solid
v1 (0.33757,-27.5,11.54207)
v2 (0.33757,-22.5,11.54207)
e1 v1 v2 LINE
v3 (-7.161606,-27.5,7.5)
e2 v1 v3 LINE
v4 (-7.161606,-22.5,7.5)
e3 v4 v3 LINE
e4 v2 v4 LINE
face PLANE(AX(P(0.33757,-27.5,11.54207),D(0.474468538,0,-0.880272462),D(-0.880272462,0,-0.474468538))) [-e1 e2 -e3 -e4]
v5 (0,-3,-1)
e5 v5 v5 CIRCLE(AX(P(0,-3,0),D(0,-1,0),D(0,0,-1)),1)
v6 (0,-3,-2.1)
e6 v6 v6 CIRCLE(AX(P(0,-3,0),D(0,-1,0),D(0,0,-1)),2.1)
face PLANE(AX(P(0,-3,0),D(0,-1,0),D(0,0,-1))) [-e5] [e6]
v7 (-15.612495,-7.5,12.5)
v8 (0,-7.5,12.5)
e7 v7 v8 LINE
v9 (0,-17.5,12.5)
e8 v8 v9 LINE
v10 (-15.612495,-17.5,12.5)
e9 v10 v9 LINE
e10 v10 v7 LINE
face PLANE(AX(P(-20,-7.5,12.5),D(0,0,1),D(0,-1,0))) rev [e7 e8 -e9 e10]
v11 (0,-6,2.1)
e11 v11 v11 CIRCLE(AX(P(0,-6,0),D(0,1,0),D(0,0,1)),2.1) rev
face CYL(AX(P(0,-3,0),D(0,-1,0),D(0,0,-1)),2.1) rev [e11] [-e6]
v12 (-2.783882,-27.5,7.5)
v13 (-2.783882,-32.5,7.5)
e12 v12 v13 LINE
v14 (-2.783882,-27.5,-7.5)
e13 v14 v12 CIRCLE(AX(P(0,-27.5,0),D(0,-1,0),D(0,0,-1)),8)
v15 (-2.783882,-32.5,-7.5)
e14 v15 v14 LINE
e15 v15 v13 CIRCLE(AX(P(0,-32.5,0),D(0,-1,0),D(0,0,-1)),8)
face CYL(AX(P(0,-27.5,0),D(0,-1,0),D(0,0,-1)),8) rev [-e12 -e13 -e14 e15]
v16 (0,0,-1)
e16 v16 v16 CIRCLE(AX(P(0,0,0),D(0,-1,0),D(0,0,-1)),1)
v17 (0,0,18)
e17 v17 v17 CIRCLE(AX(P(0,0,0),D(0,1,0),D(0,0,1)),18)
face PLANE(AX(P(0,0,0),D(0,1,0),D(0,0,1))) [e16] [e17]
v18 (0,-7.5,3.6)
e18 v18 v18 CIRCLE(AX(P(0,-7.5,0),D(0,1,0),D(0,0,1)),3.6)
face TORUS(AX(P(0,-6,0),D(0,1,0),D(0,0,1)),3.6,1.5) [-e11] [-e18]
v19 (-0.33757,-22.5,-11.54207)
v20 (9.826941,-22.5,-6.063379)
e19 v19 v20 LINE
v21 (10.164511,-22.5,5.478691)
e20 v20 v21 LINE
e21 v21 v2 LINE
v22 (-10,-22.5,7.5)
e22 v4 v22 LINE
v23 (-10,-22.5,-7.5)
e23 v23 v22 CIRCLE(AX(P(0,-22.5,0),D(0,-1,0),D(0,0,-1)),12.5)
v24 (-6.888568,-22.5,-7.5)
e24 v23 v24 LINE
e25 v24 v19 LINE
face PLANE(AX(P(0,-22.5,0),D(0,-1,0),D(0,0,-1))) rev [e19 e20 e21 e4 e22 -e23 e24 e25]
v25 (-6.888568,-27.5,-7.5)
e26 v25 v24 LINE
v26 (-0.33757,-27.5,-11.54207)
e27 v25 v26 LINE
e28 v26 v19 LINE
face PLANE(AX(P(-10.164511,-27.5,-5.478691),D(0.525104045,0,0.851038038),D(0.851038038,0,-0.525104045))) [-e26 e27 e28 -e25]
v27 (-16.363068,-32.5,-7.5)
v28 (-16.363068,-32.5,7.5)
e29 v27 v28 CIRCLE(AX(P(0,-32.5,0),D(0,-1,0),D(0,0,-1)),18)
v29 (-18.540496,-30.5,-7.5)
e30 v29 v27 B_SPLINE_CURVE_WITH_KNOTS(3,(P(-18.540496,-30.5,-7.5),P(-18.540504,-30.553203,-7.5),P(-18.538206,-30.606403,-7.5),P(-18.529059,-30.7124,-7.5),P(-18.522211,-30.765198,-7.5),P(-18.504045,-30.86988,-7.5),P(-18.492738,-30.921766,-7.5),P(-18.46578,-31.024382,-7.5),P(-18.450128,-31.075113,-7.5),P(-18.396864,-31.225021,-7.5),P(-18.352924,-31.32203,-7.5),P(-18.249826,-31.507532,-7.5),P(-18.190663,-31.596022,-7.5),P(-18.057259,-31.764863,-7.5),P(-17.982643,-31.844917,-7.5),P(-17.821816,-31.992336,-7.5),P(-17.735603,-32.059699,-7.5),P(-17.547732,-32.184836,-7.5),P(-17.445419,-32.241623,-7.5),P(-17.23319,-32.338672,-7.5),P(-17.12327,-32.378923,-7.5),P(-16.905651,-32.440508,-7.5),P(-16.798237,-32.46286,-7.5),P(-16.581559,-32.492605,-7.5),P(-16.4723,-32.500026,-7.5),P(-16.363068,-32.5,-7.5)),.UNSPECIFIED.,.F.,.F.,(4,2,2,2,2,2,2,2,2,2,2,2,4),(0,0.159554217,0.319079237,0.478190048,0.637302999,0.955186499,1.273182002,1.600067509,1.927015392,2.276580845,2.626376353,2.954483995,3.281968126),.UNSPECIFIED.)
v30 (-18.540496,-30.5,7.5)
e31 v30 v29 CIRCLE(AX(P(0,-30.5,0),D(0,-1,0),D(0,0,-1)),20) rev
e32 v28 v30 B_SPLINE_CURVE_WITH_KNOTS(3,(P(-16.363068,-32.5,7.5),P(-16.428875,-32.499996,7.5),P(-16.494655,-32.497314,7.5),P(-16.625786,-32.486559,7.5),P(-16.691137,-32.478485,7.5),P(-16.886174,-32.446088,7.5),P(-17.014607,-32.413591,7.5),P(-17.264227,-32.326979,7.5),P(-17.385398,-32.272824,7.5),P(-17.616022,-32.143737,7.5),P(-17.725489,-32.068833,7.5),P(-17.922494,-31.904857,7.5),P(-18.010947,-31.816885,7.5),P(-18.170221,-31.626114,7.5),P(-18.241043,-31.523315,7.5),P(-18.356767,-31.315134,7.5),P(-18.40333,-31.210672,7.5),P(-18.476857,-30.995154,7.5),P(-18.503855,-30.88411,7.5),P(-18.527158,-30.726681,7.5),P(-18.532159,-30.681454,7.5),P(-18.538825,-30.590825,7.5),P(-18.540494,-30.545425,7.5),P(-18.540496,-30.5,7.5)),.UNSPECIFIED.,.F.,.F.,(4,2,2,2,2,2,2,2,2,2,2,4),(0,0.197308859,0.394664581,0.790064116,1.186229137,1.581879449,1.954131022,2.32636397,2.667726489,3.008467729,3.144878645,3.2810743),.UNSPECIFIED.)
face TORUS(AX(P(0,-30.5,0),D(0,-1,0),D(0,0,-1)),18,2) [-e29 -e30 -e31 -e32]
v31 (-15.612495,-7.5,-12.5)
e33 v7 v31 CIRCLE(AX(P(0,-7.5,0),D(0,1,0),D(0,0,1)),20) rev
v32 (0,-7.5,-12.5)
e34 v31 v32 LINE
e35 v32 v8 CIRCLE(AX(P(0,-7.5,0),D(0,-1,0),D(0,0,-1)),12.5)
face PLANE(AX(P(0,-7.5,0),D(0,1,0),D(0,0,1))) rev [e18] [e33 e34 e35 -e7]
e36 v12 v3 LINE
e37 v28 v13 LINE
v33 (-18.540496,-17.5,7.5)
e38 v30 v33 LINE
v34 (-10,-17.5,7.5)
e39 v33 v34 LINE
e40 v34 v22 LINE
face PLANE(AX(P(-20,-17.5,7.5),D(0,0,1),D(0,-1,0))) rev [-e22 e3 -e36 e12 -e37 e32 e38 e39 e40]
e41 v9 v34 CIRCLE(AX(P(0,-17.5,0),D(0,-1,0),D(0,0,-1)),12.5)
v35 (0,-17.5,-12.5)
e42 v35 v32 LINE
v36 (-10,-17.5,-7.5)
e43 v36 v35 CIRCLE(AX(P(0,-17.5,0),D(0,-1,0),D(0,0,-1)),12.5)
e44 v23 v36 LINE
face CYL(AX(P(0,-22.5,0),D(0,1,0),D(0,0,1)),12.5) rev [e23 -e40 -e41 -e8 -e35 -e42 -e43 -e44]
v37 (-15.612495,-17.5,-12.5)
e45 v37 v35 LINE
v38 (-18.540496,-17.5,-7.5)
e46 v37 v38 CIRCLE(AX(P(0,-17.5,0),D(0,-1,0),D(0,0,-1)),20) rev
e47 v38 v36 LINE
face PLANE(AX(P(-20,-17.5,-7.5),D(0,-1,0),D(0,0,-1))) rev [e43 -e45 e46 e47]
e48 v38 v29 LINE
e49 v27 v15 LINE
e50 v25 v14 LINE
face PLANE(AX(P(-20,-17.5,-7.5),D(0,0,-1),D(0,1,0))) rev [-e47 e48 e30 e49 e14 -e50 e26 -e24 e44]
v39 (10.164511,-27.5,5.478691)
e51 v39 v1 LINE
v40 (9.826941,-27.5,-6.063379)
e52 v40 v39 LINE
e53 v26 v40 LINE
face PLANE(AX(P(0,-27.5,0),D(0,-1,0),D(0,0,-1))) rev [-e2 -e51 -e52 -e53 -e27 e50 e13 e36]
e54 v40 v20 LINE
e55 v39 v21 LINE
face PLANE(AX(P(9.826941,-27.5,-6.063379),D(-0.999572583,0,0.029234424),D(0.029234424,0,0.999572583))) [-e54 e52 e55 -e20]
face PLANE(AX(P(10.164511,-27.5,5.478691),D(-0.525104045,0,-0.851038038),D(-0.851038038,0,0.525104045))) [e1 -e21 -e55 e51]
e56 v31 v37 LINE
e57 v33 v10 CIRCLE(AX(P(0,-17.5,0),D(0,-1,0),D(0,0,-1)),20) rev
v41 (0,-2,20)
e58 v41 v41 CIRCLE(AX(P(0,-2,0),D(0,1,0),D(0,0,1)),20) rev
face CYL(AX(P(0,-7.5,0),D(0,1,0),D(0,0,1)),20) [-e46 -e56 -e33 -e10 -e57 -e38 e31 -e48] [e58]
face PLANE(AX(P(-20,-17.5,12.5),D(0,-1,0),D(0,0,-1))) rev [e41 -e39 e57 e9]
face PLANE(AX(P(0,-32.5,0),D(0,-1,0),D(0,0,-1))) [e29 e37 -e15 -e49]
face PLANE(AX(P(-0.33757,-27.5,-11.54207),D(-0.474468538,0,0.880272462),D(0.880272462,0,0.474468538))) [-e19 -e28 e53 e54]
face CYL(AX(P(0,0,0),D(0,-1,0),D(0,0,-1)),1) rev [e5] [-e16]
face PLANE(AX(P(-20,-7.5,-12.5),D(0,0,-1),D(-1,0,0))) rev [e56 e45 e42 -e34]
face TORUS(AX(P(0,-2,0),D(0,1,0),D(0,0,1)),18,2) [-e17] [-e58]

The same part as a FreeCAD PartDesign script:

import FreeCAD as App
import Part
import Sketcher

V = App.Vector


def edges_at(feature, points):
    """Names of the edges that pass closest to the given points."""
    edges = feature.Shape.Edges
    near = lambda p: min(range(len(edges)), key=lambda i: edges[i].distToShape(Part.Vertex(*p))[0])
    return sorted({f"Edge{near(p) + 1}" for p in points})


def add_polygon(sketch, points):
    """Adds a closed chain of lines whose ends are joined by coincident constraints."""
    first, n = sketch.GeometryCount, len(points)
    for a, b in zip(points, points[1:] + points[:1]):
        sketch.addGeometry(Part.LineSegment(App.Vector(*a, 0), App.Vector(*b, 0)), False)
    for i in range(n):
        sketch.addConstraint(Sketcher.Constraint("Coincident", first + i, 2, first + (i + 1) % n, 1))

doc = App.newDocument("Part")
body = doc.addObject("PartDesign::Body", "Body")

# Sketch on XZ plane
sketch1 = body.newObject("Sketcher::SketchObject", "Sketch")
sketch1.AttachmentSupport = (doc.getObject("XZ_Plane"), [""])
sketch1.MapMode = "FlatFace"
sketch1.addGeometry(Part.Circle(V(0, 0, 0), V(0, 0, 1), 20), False)
sketch1.addConstraint(Sketcher.Constraint("Coincident", 0, 3, -1, 1))
sketch1.addConstraint(Sketcher.Constraint("Diameter", 0, 40.0))
pad1 = body.newObject("PartDesign::Pad", "Pad")
pad1.Profile = sketch1
pad1.Length = 7.5

# Sketch on XZ plane
sketch2 = body.newObject("Sketcher::SketchObject", "Sketch001")
sketch2.AttachmentSupport = (doc.getObject("XZ_Plane"), [""])
sketch2.MapMode = "FlatFace"
sketch2.AttachmentOffset = App.Placement(V(0, 0, 7.5), App.Rotation())
sketch2.addGeometry(Part.Circle(V(0, 0, 0), V(0, 0, 1), 20), False)
sketch2.addGeometry(Part.Circle(V(0, 0, 0), V(0, 0, 1), 12.5), False)
sketch2.addConstraint(Sketcher.Constraint("Coincident", 0, 3, -1, 1))
sketch2.addConstraint(Sketcher.Constraint("Coincident", 1, 3, -1, 1))
sketch2.addConstraint(Sketcher.Constraint("Diameter", 0, 40.0))
sketch2.addConstraint(Sketcher.Constraint("Diameter", 1, 25.0))
pad2 = body.newObject("PartDesign::Pad", "Pad001")
pad2.Profile = sketch2
pad2.Length = 15

# Sketch on XZ plane
sketch3 = body.newObject("Sketcher::SketchObject", "Sketch002")
sketch3.AttachmentSupport = (doc.getObject("XZ_Plane"), [""])
sketch3.MapMode = "FlatFace"
sketch3.AttachmentOffset = App.Placement(V(0, 0, 22.5), App.Rotation())
sketch3.addGeometry(Part.Circle(V(0, 0, 0), V(0, 0, 1), 20), False)
sketch3.addConstraint(Sketcher.Constraint("Coincident", 0, 3, -1, 1))
sketch3.addConstraint(Sketcher.Constraint("Diameter", 0, 40.0))
pad3 = body.newObject("PartDesign::Pad", "Pad002")
pad3.Profile = sketch3
pad3.Length = 10

# Sketch on XZ plane
sketch4 = body.newObject("Sketcher::SketchObject", "Sketch003")
sketch4.AttachmentSupport = (doc.getObject("XZ_Plane"), [""])
sketch4.MapMode = "FlatFace"
sketch4.AttachmentOffset = App.Placement(V(0, 0, 22.5), App.Rotation())
add_polygon(sketch4, [(-10.164511, -5.478691), (-0.33757, -11.54207), (9.826941, -6.063379), (10.164511, 5.478691), (0.33757, 11.54207), (-9.826941, 6.063379)])  # lines 0-5
sketch4.addConstraint(Sketcher.Constraint("Symmetric", 0, 2, 3, 2, -1, 1))
sketch4.addConstraint(Sketcher.Constraint("Symmetric", 1, 2, 4, 2, -1, 1))
sketch4.addConstraint(Sketcher.Constraint("Symmetric", 2, 2, 5, 2, -1, 1))
sketch4.addConstraint(Sketcher.Constraint("Equal", 0, 1))
sketch4.addConstraint(Sketcher.Constraint("Equal", 1, 2))
sketch4.addConstraint(Sketcher.Constraint("DistanceX", 0, 2, -1, 1, 0.33757))
sketch4.addConstraint(Sketcher.Constraint("DistanceY", 0, 2, -1, 1, 11.54207))
sketch4.addConstraint(Sketcher.Constraint("DistanceX", -1, 1, 1, 2, 9.826941))
sketch4.addConstraint(Sketcher.Constraint("DistanceY", 1, 2, -1, 1, 6.063379))
pocket1 = body.newObject("PartDesign::Pocket", "Pocket")
pocket1.Profile = sketch4
pocket1.Length = 5
pocket1.Reversed = True

# Sketch on YZ plane
sketch5 = body.newObject("Sketcher::SketchObject", "Sketch004")
sketch5.AttachmentSupport = (doc.getObject("YZ_Plane"), [""])
sketch5.MapMode = "FlatFace"
add_polygon(sketch5, [(-17.5, -7.5), (-17.5, -12.5), (-7.5, -12.5), (-7.5, 12.5), (-17.5, 12.5), (-17.5, 7.5), (-32.5, 7.5), (-32.5, -7.5)])  # lines 0-7
sketch5.addConstraint(Sketcher.Constraint("Vertical", 0))
sketch5.addConstraint(Sketcher.Constraint("Horizontal", 1))
sketch5.addConstraint(Sketcher.Constraint("Vertical", 2))
sketch5.addConstraint(Sketcher.Constraint("Horizontal", 3))
sketch5.addConstraint(Sketcher.Constraint("Vertical", 4))
sketch5.addConstraint(Sketcher.Constraint("Horizontal", 5))
sketch5.addConstraint(Sketcher.Constraint("Vertical", 6))
sketch5.addConstraint(Sketcher.Constraint("Horizontal", 7))
sketch5.addConstraint(Sketcher.Constraint("Symmetric", 0, 2, 3, 2, -1))
sketch5.addConstraint(Sketcher.Constraint("Equal", 0, 4))
sketch5.addConstraint(Sketcher.Constraint("Equal", 7, 6))
sketch5.addConstraint(Sketcher.Constraint("DistanceX", 1, 1, 1, 2, 10.0))
sketch5.addConstraint(Sketcher.Constraint("DistanceX", 5, 2, 5, 1, 15.0))
sketch5.addConstraint(Sketcher.Constraint("DistanceY", 0, 2, 0, 1, 5.0))
sketch5.addConstraint(Sketcher.Constraint("DistanceX", 0, 2, -1, 1, 17.5))
pocket2 = body.newObject("PartDesign::Pocket", "Pocket001")
pocket2.Profile = sketch5
pocket2.Type = "ThroughAll"

# Sketch on XZ plane
sketch6 = body.newObject("Sketcher::SketchObject", "Sketch005")
sketch6.AttachmentSupport = (doc.getObject("XZ_Plane"), [""])
sketch6.MapMode = "FlatFace"
sketch6.AttachmentOffset = App.Placement(V(0, 0, 32.5), App.Rotation())
sketch6.addGeometry(Part.Circle(V(0, 0, 0), V(0, 0, 1), 8), False)
sketch6.addConstraint(Sketcher.Constraint("Coincident", 0, 3, -1, 1))
sketch6.addConstraint(Sketcher.Constraint("Diameter", 0, 16.0))
pocket3 = body.newObject("PartDesign::Pocket", "Pocket002")
pocket3.Profile = sketch6
pocket3.Length = 5

# Sketch on XZ plane
sketch7 = body.newObject("Sketcher::SketchObject", "Sketch006")
sketch7.AttachmentSupport = (doc.getObject("XZ_Plane"), [""])
sketch7.MapMode = "FlatFace"
sketch7.AttachmentOffset = App.Placement(V(0, 0, 7.5), App.Rotation())
sketch7.addGeometry(Part.Circle(V(0, 0, 0), V(0, 0, 1), 2.1), False)
sketch7.addConstraint(Sketcher.Constraint("Coincident", 0, 3, -1, 1))
sketch7.addConstraint(Sketcher.Constraint("Diameter", 0, 4.2))
pocket4 = body.newObject("PartDesign::Pocket", "Pocket003")
pocket4.Profile = sketch7
pocket4.Length = 4.5

# Sketch on XZ plane
sketch8 = body.newObject("Sketcher::SketchObject", "Sketch007")
sketch8.AttachmentSupport = (doc.getObject("XZ_Plane"), [""])
sketch8.MapMode = "FlatFace"
sketch8.AttachmentOffset = App.Placement(V(0, 0, 3), App.Rotation())
sketch8.addGeometry(Part.Circle(V(0, 0, 0), V(0, 0, 1), 1), False)
sketch8.addConstraint(Sketcher.Constraint("Coincident", 0, 3, -1, 1))
sketch8.addConstraint(Sketcher.Constraint("Diameter", 0, 2.0))
pocket5 = body.newObject("PartDesign::Pocket", "Pocket004")
pocket5.Profile = sketch8
pocket5.Type = "ThroughAll"
doc.recompute()

fillet = body.newObject("PartDesign::Fillet", "Fillet")
fillet.Base = (pocket5, edges_at(pocket5, [(0, -7.5, 2.1)]))
fillet.Radius = 1.5
doc.recompute()

fillet2 = body.newObject("PartDesign::Fillet", "Fillet001")
fillet2.Base = (fillet, edges_at(fillet, [(0, 0, -20), (16.583, -32.5, -11.18)]))
fillet2.Radius = 2

doc.recompute()
